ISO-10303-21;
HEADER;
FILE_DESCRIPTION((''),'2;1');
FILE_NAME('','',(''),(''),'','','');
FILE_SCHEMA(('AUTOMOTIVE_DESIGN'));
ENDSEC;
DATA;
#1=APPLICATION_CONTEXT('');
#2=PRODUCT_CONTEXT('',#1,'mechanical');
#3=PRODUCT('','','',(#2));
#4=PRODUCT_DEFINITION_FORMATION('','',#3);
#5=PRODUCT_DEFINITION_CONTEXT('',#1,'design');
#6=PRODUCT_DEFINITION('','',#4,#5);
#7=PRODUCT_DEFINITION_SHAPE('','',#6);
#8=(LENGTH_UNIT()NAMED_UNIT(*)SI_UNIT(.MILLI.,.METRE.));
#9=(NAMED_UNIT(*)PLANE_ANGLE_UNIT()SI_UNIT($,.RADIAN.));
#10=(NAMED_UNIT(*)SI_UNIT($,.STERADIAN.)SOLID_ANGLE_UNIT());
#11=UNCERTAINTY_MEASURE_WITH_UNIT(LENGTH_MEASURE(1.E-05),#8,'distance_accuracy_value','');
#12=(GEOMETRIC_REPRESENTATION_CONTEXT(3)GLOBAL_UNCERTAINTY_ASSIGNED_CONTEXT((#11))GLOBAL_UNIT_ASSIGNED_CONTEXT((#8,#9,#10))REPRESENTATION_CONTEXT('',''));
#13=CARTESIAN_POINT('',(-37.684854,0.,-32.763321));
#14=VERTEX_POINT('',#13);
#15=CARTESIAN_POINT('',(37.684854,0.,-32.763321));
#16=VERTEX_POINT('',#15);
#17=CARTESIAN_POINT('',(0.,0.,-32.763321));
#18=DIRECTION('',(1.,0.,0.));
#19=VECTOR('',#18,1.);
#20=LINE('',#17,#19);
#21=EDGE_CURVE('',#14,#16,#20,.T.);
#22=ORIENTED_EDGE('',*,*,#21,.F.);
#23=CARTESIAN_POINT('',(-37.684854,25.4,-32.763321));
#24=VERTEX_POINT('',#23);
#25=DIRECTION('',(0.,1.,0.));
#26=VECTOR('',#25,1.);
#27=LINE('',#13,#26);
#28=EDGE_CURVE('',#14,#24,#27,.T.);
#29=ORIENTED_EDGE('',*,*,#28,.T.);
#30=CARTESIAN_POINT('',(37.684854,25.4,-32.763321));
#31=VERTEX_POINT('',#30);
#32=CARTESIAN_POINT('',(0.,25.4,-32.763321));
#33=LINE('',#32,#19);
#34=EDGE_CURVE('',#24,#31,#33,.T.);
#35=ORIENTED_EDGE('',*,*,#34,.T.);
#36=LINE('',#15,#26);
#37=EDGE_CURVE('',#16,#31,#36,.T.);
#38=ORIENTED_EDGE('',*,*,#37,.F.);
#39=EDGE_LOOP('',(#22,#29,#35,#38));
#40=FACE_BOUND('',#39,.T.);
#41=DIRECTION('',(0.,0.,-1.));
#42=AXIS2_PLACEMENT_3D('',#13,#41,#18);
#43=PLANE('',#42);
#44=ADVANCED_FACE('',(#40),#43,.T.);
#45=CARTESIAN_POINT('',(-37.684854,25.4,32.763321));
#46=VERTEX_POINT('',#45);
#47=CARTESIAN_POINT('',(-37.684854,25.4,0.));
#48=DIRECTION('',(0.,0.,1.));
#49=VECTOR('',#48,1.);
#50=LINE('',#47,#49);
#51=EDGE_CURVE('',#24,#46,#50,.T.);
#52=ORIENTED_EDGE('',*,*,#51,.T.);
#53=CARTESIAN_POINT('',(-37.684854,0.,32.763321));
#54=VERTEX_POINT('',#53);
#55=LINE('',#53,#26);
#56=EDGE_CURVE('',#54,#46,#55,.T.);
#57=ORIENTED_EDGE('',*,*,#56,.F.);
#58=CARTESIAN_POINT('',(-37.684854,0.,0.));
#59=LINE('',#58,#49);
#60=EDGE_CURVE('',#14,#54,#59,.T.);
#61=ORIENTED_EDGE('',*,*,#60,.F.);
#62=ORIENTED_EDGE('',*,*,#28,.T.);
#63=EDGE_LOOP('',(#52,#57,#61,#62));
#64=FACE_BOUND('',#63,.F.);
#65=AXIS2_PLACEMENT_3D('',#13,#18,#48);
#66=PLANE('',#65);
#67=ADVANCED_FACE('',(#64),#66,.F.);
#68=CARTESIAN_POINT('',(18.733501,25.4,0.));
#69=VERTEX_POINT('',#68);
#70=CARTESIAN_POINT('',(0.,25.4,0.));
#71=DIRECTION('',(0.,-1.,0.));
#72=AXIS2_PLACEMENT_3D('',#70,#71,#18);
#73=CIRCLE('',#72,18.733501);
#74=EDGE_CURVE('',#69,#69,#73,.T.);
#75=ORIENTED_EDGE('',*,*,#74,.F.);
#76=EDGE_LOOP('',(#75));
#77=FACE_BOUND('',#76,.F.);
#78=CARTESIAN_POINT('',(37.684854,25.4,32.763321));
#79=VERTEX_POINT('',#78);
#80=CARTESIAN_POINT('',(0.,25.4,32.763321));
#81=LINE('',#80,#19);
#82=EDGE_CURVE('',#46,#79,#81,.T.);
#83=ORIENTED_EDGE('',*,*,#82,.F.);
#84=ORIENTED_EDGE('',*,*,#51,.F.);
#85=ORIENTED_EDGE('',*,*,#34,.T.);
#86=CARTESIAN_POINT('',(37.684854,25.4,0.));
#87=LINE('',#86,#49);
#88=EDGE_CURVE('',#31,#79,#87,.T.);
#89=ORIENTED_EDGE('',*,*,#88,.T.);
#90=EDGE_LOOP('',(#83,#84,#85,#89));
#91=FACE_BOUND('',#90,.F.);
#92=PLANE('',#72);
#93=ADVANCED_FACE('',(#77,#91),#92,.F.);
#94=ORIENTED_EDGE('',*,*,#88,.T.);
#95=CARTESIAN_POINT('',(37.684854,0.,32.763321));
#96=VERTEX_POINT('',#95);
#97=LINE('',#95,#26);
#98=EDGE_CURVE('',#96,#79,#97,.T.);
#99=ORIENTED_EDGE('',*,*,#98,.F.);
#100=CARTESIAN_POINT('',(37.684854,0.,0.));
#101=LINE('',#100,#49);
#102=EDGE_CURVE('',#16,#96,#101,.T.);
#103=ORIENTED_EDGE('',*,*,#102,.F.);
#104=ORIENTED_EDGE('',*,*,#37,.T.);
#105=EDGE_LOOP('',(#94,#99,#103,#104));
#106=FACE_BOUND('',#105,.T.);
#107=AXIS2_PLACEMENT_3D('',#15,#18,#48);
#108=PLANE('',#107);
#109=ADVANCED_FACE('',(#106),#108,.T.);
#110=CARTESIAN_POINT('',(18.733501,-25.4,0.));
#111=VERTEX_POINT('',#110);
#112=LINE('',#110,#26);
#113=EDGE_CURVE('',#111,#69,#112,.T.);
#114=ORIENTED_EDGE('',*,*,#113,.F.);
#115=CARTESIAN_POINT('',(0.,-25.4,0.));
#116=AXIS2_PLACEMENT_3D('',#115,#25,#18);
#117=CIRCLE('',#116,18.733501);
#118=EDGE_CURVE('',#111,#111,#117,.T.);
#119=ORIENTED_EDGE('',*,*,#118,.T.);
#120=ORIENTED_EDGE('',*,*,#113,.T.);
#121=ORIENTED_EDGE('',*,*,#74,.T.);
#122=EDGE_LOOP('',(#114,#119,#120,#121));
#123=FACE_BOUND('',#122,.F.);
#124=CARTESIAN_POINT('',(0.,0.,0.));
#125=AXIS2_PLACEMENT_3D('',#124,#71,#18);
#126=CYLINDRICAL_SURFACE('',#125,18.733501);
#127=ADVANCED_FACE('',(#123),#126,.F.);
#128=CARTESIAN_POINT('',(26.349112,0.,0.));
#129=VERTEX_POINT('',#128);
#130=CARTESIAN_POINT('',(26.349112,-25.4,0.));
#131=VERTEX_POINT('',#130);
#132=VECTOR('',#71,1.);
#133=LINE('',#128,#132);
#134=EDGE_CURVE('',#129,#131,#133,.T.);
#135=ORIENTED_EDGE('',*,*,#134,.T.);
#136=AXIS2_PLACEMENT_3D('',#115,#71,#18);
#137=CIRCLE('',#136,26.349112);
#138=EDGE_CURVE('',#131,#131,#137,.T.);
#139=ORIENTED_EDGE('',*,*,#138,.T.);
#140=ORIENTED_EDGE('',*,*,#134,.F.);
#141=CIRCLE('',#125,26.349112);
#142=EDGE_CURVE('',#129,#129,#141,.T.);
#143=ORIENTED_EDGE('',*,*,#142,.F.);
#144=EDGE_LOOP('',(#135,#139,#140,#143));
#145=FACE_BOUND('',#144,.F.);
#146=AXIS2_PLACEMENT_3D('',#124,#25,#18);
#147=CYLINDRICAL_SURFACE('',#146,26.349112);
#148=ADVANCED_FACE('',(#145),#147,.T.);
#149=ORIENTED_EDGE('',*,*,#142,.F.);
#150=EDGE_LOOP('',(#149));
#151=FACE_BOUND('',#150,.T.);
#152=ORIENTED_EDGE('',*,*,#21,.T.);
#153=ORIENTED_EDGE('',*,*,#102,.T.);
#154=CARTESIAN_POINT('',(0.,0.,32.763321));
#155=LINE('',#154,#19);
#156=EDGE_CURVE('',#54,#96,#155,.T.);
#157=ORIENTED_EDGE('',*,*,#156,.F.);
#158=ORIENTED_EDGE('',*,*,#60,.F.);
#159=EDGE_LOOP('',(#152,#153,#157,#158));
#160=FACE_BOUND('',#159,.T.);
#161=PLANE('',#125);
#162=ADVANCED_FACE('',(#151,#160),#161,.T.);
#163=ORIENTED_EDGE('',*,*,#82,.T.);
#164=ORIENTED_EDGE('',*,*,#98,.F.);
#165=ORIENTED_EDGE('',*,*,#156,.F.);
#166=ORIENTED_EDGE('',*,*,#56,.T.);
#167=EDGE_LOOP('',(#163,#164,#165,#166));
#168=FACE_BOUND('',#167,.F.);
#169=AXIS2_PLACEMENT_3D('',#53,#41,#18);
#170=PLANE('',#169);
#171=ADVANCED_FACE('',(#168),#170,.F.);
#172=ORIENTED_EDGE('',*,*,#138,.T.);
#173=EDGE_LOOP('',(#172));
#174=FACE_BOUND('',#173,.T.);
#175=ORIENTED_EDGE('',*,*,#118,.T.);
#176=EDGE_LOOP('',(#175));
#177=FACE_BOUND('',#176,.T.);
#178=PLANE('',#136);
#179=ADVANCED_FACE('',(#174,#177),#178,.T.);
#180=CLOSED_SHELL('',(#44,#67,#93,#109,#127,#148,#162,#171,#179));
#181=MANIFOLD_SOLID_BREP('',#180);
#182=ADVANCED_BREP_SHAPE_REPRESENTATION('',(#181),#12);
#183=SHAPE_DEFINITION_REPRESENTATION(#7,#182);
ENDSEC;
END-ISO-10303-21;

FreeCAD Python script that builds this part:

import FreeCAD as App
import Part
import Sketcher
from FreeCAD import Vector
Q = App.Units.Quantity

doc = App.newDocument("Part")
body = doc.addObject("PartDesign::Body", "Body")

# Sketch on XZ plane
sketch1 = doc.addObject("Sketcher::SketchObject", "Sketch")
body.addObject(sketch1)
sketch1.AttachmentSupport = (doc.XZ_Plane, [""])
sketch1.MapMode = "FlatFace"
sketch1.addGeometry(Part.LineSegment(Vector(-38, 33, 0), Vector(-38, -33, 0)), False)
sketch1.addGeometry(Part.LineSegment(Vector(-38, -33, 0), Vector(38, -33, 0)), False)
sketch1.addGeometry(Part.LineSegment(Vector(38, -33, 0), Vector(38, 33, 0)), False)
sketch1.addGeometry(Part.LineSegment(Vector(38, 33, 0), Vector(-38, 33, 0)), False)
sketch1.addConstraint(Sketcher.Constraint("Coincident", 0, 2, 1, 1))
sketch1.addConstraint(Sketcher.Constraint("Coincident", 1, 2, 2, 1))
sketch1.addConstraint(Sketcher.Constraint("Coincident", 2, 2, 3, 1))
sketch1.addConstraint(Sketcher.Constraint("Coincident", 3, 2, 0, 1))
sketch1.addConstraint(Sketcher.Constraint("Vertical", 0))
sketch1.addConstraint(Sketcher.Constraint("Horizontal", 1))
sketch1.addConstraint(Sketcher.Constraint("Vertical", 2))
sketch1.addConstraint(Sketcher.Constraint("Horizontal", 3))
sketch1.addConstraint(Sketcher.Constraint("Symmetric", 0, 2, 2, 2, -1, 1))
sketch1.addConstraint(Sketcher.Constraint("DistanceX", 1, 1, 1, 2, 75.369708))
sketch1.addConstraint(Sketcher.Constraint("DistanceY", 0, 2, 0, 1, 65.526642))
pad1 = doc.addObject("PartDesign::Pad", "Pad")
body.addObject(pad1)
pad1.Profile = sketch1
pad1.Length = Q("1 in")
pad1.Reversed = True

# Sketch on XZ plane
sketch2 = doc.addObject("Sketcher::SketchObject", "Sketch001")
body.addObject(sketch2)
sketch2.AttachmentSupport = (doc.XZ_Plane, [""])
sketch2.MapMode = "FlatFace"
sketch2.addGeometry(Part.Circle(Vector(0, 0, 0), Vector(0, 0, 1), 26), False)
sketch2.addConstraint(Sketcher.Constraint("Coincident", 0, 3, -1, 1))
sketch2.addConstraint(Sketcher.Constraint("Diameter", 0, 52.698224))
pad2 = doc.addObject("PartDesign::Pad", "Pad001")
body.addObject(pad2)
pad2.Profile = sketch2
pad2.Length = Q("1 in")

# Sketch on XZ plane
sketch3 = doc.addObject("Sketcher::SketchObject", "Sketch002")
body.addObject(sketch3)
sketch3.AttachmentSupport = (doc.XZ_Plane, [""])
sketch3.MapMode = "FlatFace"
sketch3.addGeometry(Part.Circle(Vector(0, 0, 0), Vector(0, 0, 1), 19), False)
sketch3.addConstraint(Sketcher.Constraint("Coincident", 0, 3, -1, 1))
sketch3.addConstraint(Sketcher.Constraint("Diameter", 0, 37.467002))
pocket1 = doc.addObject("PartDesign::Pocket", "Pocket")
body.addObject(pocket1)
pocket1.Profile = sketch3
pocket1.Type = "ThroughAll"
pocket1.Reversed = True

# Sketch on XZ plane
sketch4 = doc.addObject("Sketcher::SketchObject", "Sketch003")
body.addObject(sketch4)
sketch4.AttachmentSupport = (doc.XZ_Plane, [""])
sketch4.MapMode = "FlatFace"
sketch4.addGeometry(Part.Circle(Vector(0, 0, 0), Vector(0, 0, 1), 19), False)
sketch4.addConstraint(Sketcher.Constraint("Coincident", 0, 3, -1, 1))
sketch4.addConstraint(Sketcher.Constraint("Diameter", 0, 37.467002))
pocket2 = doc.addObject("PartDesign::Pocket", "Pocket001")
body.addObject(pocket2)
pocket2.Profile = sketch4
pocket2.Type = "ThroughAll"

doc.recompute()
